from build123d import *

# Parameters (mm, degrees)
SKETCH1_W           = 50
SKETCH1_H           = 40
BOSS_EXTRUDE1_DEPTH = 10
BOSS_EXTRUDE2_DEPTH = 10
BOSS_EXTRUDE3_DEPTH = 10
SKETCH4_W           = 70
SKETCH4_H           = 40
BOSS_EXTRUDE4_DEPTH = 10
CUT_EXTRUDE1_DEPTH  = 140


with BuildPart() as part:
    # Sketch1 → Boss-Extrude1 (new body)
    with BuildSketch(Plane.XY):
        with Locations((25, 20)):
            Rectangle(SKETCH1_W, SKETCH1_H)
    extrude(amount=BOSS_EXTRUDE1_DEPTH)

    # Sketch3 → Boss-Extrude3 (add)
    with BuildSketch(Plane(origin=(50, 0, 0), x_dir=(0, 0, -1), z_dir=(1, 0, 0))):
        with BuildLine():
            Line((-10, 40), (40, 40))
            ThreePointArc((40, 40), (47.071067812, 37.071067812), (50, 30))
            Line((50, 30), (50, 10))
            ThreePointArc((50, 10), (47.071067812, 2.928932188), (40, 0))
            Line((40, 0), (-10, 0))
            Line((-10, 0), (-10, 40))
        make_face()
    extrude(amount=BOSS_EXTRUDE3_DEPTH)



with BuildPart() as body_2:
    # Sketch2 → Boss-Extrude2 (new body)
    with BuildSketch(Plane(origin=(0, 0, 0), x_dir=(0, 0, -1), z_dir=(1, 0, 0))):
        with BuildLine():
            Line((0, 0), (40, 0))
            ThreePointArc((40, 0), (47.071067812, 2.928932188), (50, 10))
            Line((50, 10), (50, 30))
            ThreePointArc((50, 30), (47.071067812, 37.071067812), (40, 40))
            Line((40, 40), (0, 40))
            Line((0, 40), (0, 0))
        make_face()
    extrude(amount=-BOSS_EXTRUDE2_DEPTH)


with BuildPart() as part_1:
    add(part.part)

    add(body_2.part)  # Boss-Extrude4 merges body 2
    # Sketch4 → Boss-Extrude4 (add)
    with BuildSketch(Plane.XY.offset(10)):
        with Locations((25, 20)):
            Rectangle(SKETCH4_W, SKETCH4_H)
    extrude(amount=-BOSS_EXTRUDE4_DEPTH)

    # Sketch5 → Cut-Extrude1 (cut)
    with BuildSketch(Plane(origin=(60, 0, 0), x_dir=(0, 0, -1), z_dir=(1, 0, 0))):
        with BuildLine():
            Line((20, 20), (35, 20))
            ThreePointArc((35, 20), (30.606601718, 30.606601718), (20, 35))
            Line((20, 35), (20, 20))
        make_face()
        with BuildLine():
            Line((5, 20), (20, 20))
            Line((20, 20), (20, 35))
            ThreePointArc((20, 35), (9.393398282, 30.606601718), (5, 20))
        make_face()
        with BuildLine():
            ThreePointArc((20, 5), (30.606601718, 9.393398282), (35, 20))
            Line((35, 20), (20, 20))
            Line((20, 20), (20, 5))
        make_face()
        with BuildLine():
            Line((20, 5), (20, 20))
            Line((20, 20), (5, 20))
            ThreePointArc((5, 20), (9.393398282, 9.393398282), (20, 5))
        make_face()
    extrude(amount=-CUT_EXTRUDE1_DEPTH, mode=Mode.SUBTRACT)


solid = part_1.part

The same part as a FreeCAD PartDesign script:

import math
import FreeCAD as App
import Part
import Sketcher
from FreeCAD import Vector
Q = App.Units.Quantity

doc = App.newDocument("Part")
params = doc.addObject("Spreadsheet::Sheet", "Params")
for row, (alias, value) in enumerate([
    ("sketch1_width", "50 mm"),
    ("sketch1_height", "40 mm"),
    ("pad1_length", "10 mm"),
    ("sketch2_radius", "10 mm"),
    ("sketch2_width", "40 mm"),
    ("sketch2_height", "50 mm"),
    ("pad2_length", "10 mm"),
    ("sketch3_radius", "10 mm"),
    ("sketch3_width", "20 mm"),
    ("pad3_length", "10 mm"),
    ("sketch4_width", "70 mm"),
    ("sketch4_height", "40 mm"),
    ("pad4_length", "10 mm"),
    ("sketch5_radius", "15 mm"),
    ("pocket1_length", "140 mm"),
], start=1):
    params.set(f"A{row}", alias)
    params.set(f"B{row}", "=" + value)
    params.setAlias(f"B{row}", alias)

body = doc.addObject("PartDesign::Body", "Body")

sketch1 = body.newObject("Sketcher::SketchObject", "Sketch")
sketch1.AttachmentSupport = (doc.getObject("XY_Plane"), [""])
sketch1.MapMode = "FlatFace"
sketch1.addGeometry(Part.LineSegment(Vector(0, 40, 0), Vector(0, 0, 0)), False)
sketch1.addGeometry(Part.LineSegment(Vector(0, 0, 0), Vector(50, 0, 0)), False)
sketch1.addGeometry(Part.LineSegment(Vector(50, 0, 0), Vector(50, 40, 0)), False)
sketch1.addGeometry(Part.LineSegment(Vector(50, 40, 0), Vector(0, 40, 0)), False)
sketch1.addConstraint(Sketcher.Constraint("Coincident", 0, 2, 1, 1))
sketch1.addConstraint(Sketcher.Constraint("Coincident", 1, 2, 2, 1))
sketch1.addConstraint(Sketcher.Constraint("Coincident", 2, 2, 3, 1))
sketch1.addConstraint(Sketcher.Constraint("Coincident", 3, 2, 0, 1))
sketch1.addConstraint(Sketcher.Constraint("Vertical", 0))
sketch1.addConstraint(Sketcher.Constraint("Horizontal", 1))
sketch1.addConstraint(Sketcher.Constraint("Vertical", 2))
sketch1.addConstraint(Sketcher.Constraint("Horizontal", 3))
sketch1.addConstraint(Sketcher.Constraint("Coincident", 0, 2, -1, 1))
sketch1.addConstraint(Sketcher.Constraint("DistanceX", 1, 1, 1, 2, Q("50 mm")))
sketch1.addConstraint(Sketcher.Constraint("DistanceY", 0, 2, 0, 1, Q("40 mm")))
sketch1.setExpression("Constraints[9]", "Params.sketch1_width")
sketch1.setExpression("Constraints[10]", "Params.sketch1_height")
pad1 = body.newObject("PartDesign::Pad", "Pad")
pad1.Profile = sketch1
pad1.setExpression("Length", "Params.pad1_length")

sketch2 = body.newObject("Sketcher::SketchObject", "Sketch001")
sketch2.AttachmentSupport = (doc.getObject("YZ_Plane"), [""])
sketch2.MapMode = "FlatFace"
sketch2.AttachmentOffset = App.Placement(Vector(0, 0, 50), App.Rotation())
sketch2.addGeometry(Part.LineSegment(Vector(40, -40, 0), Vector(40, 10, 0)), False)
sketch2.addGeometry(Part.LineSegment(Vector(40, 10, 0), Vector(0, 10, 0)), False)
sketch2.addGeometry(Part.LineSegment(Vector(0, 10, 0), Vector(0, -40, 0)), False)
sketch2.addGeometry(Part.ArcOfCircle(Part.Circle(Vector(10, -40, 0), Vector(0, 0, 1), 10), math.radians(180), math.radians(270)), False)
sketch2.addGeometry(Part.LineSegment(Vector(10, -50, 0), Vector(30, -50, 0)), False)
sketch2.addGeometry(Part.ArcOfCircle(Part.Circle(Vector(30, -40, 0), Vector(0, 0, 1), 10), math.radians(-90), math.radians(0)), False)
sketch2.addConstraint(Sketcher.Constraint("Coincident", 0, 2, 1, 1))
sketch2.addConstraint(Sketcher.Constraint("Coincident", 1, 2, 2, 1))
sketch2.addConstraint(Sketcher.Constraint("Tangent", 2, 2, 3, 1))
sketch2.addConstraint(Sketcher.Constraint("Tangent", 3, 2, 4, 1))
sketch2.addConstraint(Sketcher.Constraint("Tangent", 4, 2, 5, 1))
sketch2.addConstraint(Sketcher.Constraint("Tangent", 5, 2, 0, 1))
sketch2.addConstraint(Sketcher.Constraint("Vertical", 0))
sketch2.addConstraint(Sketcher.Constraint("Horizontal", 1))
sketch2.addConstraint(Sketcher.Constraint("Vertical", 2))
sketch2.addConstraint(Sketcher.Constraint("Horizontal", 4))
sketch2.addConstraint(Sketcher.Constraint("Equal", 3, 5))
sketch2.addConstraint(Sketcher.Constraint("PointOnObject", 1, 2, -2))
sketch2.addConstraint(Sketcher.Constraint("Radius", 3, Q("10 mm")))
sketch2.addConstraint(Sketcher.Constraint("DistanceX", 1, 2, 1, 1, Q("40 mm")))
sketch2.addConstraint(Sketcher.Constraint("DistanceY", 0, 1, 0, 2, Q("50 mm")))
sketch2.addConstraint(Sketcher.Constraint("DistanceY", 3, 3, -1, 1, Q("40 mm")))
sketch2.setExpression("Constraints[12]", "Params.sketch2_radius")
sketch2.setExpression("Constraints[13]", "Params.sketch2_width")
sketch2.setExpression("Constraints[14]", "Params.sketch2_height")
pad2 = body.newObject("PartDesign::Pad", "Pad001")
pad2.Profile = sketch2
pad2.setExpression("Length", "Params.pad2_length")
body2 = doc.addObject("PartDesign::Body", "Body001")

sketch3 = body2.newObject("Sketcher::SketchObject", "Sketch002")
sketch3.AttachmentSupport = (doc.getObject("YZ_Plane001"), [""])
sketch3.MapMode = "FlatFace"
sketch3.addGeometry(Part.LineSegment(Vector(0, 0, 0), Vector(0, -40, 0)), False)
sketch3.addGeometry(Part.ArcOfCircle(Part.Circle(Vector(10, -40, 0), Vector(0, 0, 1), 10), math.radians(180), math.radians(270)), False)
sketch3.addGeometry(Part.LineSegment(Vector(10, -50, 0), Vector(30, -50, 0)), False)
sketch3.addGeometry(Part.ArcOfCircle(Part.Circle(Vector(30, -40, 0), Vector(0, 0, 1), 10), math.radians(-90), math.radians(0)), False)
sketch3.addGeometry(Part.LineSegment(Vector(40, -40, 0), Vector(40, 0, 0)), False)
sketch3.addGeometry(Part.LineSegment(Vector(40, 0, 0), Vector(0, 0, 0)), False)
sketch3.addConstraint(Sketcher.Constraint("Tangent", 0, 2, 1, 1))
sketch3.addConstraint(Sketcher.Constraint("Tangent", 1, 2, 2, 1))
sketch3.addConstraint(Sketcher.Constraint("Tangent", 2, 2, 3, 1))
sketch3.addConstraint(Sketcher.Constraint("Tangent", 3, 2, 4, 1))
sketch3.addConstraint(Sketcher.Constraint("Coincident", 4, 2, 5, 1))
sketch3.addConstraint(Sketcher.Constraint("Coincident", 5, 2, 0, 1))
sketch3.addConstraint(Sketcher.Constraint("Vertical", 0))
sketch3.addConstraint(Sketcher.Constraint("Horizontal", 2))
sketch3.addConstraint(Sketcher.Constraint("Vertical", 4))
sketch3.addConstraint(Sketcher.Constraint("Horizontal", 5))
sketch3.addConstraint(Sketcher.Constraint("Coincident", 5, 2, -1, 1))
sketch3.addConstraint(Sketcher.Constraint("Equal", 1, 3))
sketch3.addConstraint(Sketcher.Constraint("Equal", 5, 0))
sketch3.addConstraint(Sketcher.Constraint("Radius", 1, Q("10 mm")))
sketch3.addConstraint(Sketcher.Constraint("DistanceX", 2, 1, 2, 2, Q("20 mm")))
sketch3.setExpression("Constraints[13]", "Params.sketch3_radius")
sketch3.setExpression("Constraints[14]", "Params.sketch3_width")
pad3 = body2.newObject("PartDesign::Pad", "Pad002")
pad3.Profile = sketch3
pad3.setExpression("Length", "Params.pad3_length")
pad3.Reversed = True
body.AllowCompound = True
doc.recompute()

boolean = body.newObject("PartDesign::Boolean", "Boolean")
boolean.Type = "Fuse"
boolean.addObjects([body2])

sketch4 = body.newObject("Sketcher::SketchObject", "Sketch003")
sketch4.AttachmentSupport = (doc.getObject("XY_Plane"), [""])
sketch4.MapMode = "FlatFace"
sketch4.AttachmentOffset = App.Placement(Vector(0, 0, 10), App.Rotation())
sketch4.addGeometry(Part.LineSegment(Vector(-10, 40, 0), Vector(-10, 0, 0)), False)
sketch4.addGeometry(Part.LineSegment(Vector(-10, 0, 0), Vector(60, 0, 0)), False)
sketch4.addGeometry(Part.LineSegment(Vector(60, 0, 0), Vector(60, 40, 0)), False)
sketch4.addGeometry(Part.LineSegment(Vector(60, 40, 0), Vector(-10, 40, 0)), False)
sketch4.addConstraint(Sketcher.Constraint("Coincident", 0, 2, 1, 1))
sketch4.addConstraint(Sketcher.Constraint("Coincident", 1, 2, 2, 1))
sketch4.addConstraint(Sketcher.Constraint("Coincident", 2, 2, 3, 1))
sketch4.addConstraint(Sketcher.Constraint("Coincident", 3, 2, 0, 1))
sketch4.addConstraint(Sketcher.Constraint("Vertical", 0))
sketch4.addConstraint(Sketcher.Constraint("Horizontal", 1))
sketch4.addConstraint(Sketcher.Constraint("Vertical", 2))
sketch4.addConstraint(Sketcher.Constraint("Horizontal", 3))
sketch4.addConstraint(Sketcher.Constraint("PointOnObject", 0, 2, -1))
sketch4.addConstraint(Sketcher.Constraint("DistanceX", 1, 1, 1, 2, Q("70 mm")))
sketch4.addConstraint(Sketcher.Constraint("DistanceY", 0, 2, 0, 1, Q("40 mm")))
sketch4.addConstraint(Sketcher.Constraint("DistanceX", 0, 2, -1, 1, Q("10 mm")))
sketch4.setExpression("Constraints[9]", "Params.sketch4_width")
sketch4.setExpression("Constraints[10]", "Params.sketch4_height")
pad4 = body.newObject("PartDesign::Pad", "Pad003")
pad4.Profile = sketch4
pad4.setExpression("Length", "Params.pad4_length")
pad4.Reversed = True

sketch5 = body.newObject("Sketcher::SketchObject", "Sketch004")
sketch5.AttachmentSupport = (doc.getObject("YZ_Plane"), [""])
sketch5.MapMode = "FlatFace"
sketch5.AttachmentOffset = App.Placement(Vector(0, 0, 60), App.Rotation())
sketch5.addGeometry(Part.ArcOfCircle(Part.Circle(Vector(20, -20, 0), Vector(0, 0, 1), 15), math.radians(180), math.radians(270)), False)
sketch5.addGeometry(Part.ArcOfCircle(Part.Circle(Vector(20, -20, 0), Vector(0, 0, 1), 15), math.radians(-90), math.radians(0)), False)
sketch5.addGeometry(Part.ArcOfCircle(Part.Circle(Vector(20, -20, 0), Vector(0, 0, 1), 15), math.radians(0), math.radians(90)), False)
sketch5.addGeometry(Part.ArcOfCircle(Part.Circle(Vector(20, -20, 0), Vector(0, 0, 1), 15), math.radians(90), math.radians(180)), False)
sketch5.addConstraint(Sketcher.Constraint("Tangent", 0, 2, 1, 1))
sketch5.addConstraint(Sketcher.Constraint("Tangent", 1, 2, 2, 1))
sketch5.addConstraint(Sketcher.Constraint("Tangent", 2, 2, 3, 1))
sketch5.addConstraint(Sketcher.Constraint("Tangent", 3, 2, 0, 1))
sketch5.addConstraint(Sketcher.Constraint("Equal", 0, 1))
sketch5.addConstraint(Sketcher.Constraint("Horizontal", 3, 3, 1, 2))
sketch5.addConstraint(Sketcher.Constraint("Horizontal", 1, 2, 3, 2))
sketch5.addConstraint(Sketcher.Constraint("Vertical", 3, 3, 0, 2))
sketch5.addConstraint(Sketcher.Constraint("Vertical", 0, 2, 2, 2))
sketch5.addConstraint(Sketcher.Constraint("Radius", 0, Q("15 mm")))
sketch5.addConstraint(Sketcher.Constraint("DistanceX", -1, 1, 0, 3, Q("20 mm")))
sketch5.addConstraint(Sketcher.Constraint("DistanceY", 0, 3, -1, 1, Q("20 mm")))
sketch5.setExpression("Constraints[9]", "Params.sketch5_radius")
pocket1 = body.newObject("PartDesign::Pocket", "Pocket")
pocket1.Profile = sketch5
pocket1.setExpression("Length", "Params.pocket1_length")

doc.recompute()
